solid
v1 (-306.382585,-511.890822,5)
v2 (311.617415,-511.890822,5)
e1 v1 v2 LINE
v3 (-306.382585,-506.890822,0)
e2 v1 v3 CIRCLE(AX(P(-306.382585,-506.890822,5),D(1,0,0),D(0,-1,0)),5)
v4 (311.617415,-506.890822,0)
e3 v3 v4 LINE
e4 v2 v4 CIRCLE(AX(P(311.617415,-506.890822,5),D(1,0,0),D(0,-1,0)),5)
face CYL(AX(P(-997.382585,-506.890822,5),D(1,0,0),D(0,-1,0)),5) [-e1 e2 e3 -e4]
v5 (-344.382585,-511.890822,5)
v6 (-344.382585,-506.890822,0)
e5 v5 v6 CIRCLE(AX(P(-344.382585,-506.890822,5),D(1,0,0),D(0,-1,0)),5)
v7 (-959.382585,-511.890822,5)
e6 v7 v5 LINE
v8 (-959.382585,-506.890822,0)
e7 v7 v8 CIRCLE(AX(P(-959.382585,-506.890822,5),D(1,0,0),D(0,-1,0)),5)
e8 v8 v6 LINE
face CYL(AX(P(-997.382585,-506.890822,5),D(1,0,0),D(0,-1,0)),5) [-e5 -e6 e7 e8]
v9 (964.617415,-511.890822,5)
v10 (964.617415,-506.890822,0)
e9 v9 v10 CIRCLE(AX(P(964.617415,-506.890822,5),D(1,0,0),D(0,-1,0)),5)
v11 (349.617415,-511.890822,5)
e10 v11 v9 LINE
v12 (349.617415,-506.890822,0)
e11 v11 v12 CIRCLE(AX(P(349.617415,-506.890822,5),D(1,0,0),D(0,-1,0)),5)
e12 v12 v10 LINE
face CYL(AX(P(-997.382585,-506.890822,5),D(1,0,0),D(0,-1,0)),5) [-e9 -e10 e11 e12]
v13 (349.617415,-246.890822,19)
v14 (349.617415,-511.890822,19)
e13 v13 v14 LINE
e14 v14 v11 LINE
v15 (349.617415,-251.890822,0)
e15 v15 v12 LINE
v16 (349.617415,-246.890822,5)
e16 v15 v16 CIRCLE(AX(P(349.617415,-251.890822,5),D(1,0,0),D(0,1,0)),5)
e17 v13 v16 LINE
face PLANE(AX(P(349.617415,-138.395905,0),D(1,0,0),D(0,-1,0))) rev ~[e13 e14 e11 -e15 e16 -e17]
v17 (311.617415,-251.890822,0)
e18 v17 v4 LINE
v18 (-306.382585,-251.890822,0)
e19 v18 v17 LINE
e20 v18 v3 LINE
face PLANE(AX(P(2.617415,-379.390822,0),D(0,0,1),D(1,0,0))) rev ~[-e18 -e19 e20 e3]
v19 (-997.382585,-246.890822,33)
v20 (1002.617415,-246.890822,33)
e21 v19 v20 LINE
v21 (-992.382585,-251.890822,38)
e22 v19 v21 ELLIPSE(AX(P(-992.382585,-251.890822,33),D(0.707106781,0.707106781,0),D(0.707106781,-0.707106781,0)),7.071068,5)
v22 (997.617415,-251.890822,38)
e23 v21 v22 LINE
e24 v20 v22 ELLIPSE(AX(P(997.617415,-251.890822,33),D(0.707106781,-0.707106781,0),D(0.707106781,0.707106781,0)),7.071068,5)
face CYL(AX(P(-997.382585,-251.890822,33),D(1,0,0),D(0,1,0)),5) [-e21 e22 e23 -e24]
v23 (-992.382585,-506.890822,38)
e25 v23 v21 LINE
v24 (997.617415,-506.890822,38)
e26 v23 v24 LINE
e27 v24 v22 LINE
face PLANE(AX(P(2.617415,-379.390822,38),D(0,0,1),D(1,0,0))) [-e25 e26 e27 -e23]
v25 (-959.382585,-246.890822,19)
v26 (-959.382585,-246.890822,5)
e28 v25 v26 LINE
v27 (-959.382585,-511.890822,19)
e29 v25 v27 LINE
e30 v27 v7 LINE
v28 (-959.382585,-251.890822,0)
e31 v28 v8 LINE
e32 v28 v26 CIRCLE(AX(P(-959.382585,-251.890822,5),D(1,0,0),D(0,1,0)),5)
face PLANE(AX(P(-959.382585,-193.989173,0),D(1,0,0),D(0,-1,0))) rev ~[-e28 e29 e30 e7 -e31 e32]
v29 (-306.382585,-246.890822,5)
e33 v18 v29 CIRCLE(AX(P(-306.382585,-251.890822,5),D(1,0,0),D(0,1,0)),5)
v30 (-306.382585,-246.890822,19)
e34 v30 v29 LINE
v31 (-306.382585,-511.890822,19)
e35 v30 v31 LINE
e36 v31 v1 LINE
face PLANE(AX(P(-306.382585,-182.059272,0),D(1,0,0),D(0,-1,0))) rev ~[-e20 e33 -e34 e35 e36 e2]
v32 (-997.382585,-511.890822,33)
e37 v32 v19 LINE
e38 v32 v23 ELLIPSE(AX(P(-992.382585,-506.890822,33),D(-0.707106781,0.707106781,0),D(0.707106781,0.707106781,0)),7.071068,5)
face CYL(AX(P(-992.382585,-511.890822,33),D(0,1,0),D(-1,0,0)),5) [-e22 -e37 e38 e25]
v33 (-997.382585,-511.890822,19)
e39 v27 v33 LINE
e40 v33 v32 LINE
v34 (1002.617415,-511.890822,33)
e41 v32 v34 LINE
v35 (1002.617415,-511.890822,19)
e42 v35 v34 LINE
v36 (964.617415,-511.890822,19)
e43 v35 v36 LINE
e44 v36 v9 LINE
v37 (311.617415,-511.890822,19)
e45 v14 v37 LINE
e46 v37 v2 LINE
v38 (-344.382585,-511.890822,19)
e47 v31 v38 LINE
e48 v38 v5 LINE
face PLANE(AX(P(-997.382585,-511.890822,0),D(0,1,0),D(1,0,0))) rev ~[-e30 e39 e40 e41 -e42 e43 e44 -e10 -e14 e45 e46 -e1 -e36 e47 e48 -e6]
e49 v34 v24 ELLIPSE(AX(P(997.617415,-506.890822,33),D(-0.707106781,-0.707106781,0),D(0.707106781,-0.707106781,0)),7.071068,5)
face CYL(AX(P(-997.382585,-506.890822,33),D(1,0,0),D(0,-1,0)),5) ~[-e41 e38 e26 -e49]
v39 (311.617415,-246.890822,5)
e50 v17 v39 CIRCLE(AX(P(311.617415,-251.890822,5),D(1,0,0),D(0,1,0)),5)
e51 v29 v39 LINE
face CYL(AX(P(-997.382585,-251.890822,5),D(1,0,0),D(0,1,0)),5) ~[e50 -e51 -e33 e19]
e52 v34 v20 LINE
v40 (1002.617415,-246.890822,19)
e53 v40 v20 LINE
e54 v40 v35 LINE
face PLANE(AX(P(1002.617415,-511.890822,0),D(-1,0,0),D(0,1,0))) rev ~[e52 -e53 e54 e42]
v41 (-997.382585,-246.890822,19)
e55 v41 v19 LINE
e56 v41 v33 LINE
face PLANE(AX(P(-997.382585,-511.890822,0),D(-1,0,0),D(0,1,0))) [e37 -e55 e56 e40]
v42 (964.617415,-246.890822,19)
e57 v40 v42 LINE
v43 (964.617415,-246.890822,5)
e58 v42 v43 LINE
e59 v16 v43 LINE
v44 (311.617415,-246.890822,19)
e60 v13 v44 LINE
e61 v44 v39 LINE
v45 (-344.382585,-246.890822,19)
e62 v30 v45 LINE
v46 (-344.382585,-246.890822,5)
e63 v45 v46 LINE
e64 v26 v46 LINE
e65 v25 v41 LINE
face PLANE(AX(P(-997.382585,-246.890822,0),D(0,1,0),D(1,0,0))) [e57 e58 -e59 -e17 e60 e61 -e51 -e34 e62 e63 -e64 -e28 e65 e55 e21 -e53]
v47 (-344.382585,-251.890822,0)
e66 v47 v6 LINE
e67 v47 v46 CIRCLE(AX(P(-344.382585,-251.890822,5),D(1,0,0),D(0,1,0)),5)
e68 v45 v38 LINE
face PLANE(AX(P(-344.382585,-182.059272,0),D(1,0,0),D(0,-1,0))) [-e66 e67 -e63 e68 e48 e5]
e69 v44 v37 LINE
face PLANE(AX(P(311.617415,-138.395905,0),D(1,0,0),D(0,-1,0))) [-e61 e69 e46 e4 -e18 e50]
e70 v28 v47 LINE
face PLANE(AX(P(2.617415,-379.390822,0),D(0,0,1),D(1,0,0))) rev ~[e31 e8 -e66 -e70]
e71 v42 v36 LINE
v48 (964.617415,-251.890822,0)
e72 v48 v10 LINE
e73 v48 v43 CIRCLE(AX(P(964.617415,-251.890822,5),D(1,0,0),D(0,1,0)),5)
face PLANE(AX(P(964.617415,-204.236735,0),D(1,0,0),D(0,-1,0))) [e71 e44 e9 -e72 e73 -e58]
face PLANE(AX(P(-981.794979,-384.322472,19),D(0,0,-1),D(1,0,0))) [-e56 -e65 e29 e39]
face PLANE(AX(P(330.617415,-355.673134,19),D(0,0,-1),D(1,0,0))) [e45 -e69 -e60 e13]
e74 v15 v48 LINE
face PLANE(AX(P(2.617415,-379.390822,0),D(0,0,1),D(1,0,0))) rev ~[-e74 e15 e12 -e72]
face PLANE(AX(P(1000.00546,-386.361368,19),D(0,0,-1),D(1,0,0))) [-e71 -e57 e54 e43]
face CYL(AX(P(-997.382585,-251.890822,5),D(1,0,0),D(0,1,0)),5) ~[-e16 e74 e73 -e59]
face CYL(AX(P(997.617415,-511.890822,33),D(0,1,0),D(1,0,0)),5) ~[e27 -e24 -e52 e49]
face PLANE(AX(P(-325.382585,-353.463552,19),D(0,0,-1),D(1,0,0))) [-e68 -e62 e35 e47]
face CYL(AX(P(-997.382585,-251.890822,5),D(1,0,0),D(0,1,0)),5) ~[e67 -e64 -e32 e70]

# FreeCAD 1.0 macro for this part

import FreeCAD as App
import Part
import Sketcher
from FreeCAD import Vector
Q = App.Units.Quantity


def edges_at(feature, points):
    """Names of the edges that pass closest to the given points."""
    edges = feature.Shape.Edges
    near = lambda p: min(range(len(edges)), key=lambda i: edges[i].distToShape(Part.Vertex(*p))[0])
    return sorted({f"Edge{near(p) + 1}" for p in points})

doc = App.newDocument("Part")
body = doc.addObject("PartDesign::Body", "Body")

# Sketch on XY plane
sketch1 = body.newObject("Sketcher::SketchObject", "Sketch")
sketch1.AttachmentSupport = (doc.getObject("XY_Plane"), [""])
sketch1.MapMode = "FlatFace"
sketch1.addGeometry(Part.LineSegment(Vector(-997, -247, 0), Vector(-997, -512, 0)), False)
sketch1.addGeometry(Part.LineSegment(Vector(-997, -512, 0), Vector(1003, -512, 0)), False)
sketch1.addGeometry(Part.LineSegment(Vector(1003, -512, 0), Vector(1003, -247, 0)), False)
sketch1.addGeometry(Part.LineSegment(Vector(1003, -247, 0), Vector(-997, -247, 0)), False)
sketch1.addConstraint(Sketcher.Constraint("Coincident", 0, 2, 1, 1))
sketch1.addConstraint(Sketcher.Constraint("Coincident", 1, 2, 2, 1))
sketch1.addConstraint(Sketcher.Constraint("Coincident", 2, 2, 3, 1))
sketch1.addConstraint(Sketcher.Constraint("Coincident", 3, 2, 0, 1))
sketch1.addConstraint(Sketcher.Constraint("Vertical", 0))
sketch1.addConstraint(Sketcher.Constraint("Horizontal", 1))
sketch1.addConstraint(Sketcher.Constraint("Vertical", 2))
sketch1.addConstraint(Sketcher.Constraint("Horizontal", 3))
sketch1.addConstraint(Sketcher.Constraint("DistanceX", 1, 1, 1, 2, Q("2000 mm")))
sketch1.addConstraint(Sketcher.Constraint("DistanceY", 0, 2, 0, 1, Q("265 mm")))
sketch1.addConstraint(Sketcher.Constraint("DistanceY", 0, 2, -1, 1, Q("511.890822 mm")))
sketch1.addConstraint(Sketcher.Constraint("DistanceX", 0, 2, -1, 1, Q("997.382585 mm")))
pad1 = body.newObject("PartDesign::Pad", "Pad")
pad1.Profile = sketch1
pad1.Length = 38
doc.recompute()

fillet = body.newObject("PartDesign::Fillet", "Fillet")
fillet.Base = (pad1, edges_at(pad1, [
    (2.617, -246.891, 38),
    (-997.383, -379.391, 38),
    (2.617, -511.891, 38),
    (1002.617, -379.391, 38),
    (2.617, -246.891, 0),
    (-997.383, -379.391, 0),
    (2.617, -511.891, 0),
    (1002.617, -379.391, 0),
]))
fillet.Radius = 5

# Sketch on XY plane
sketch2 = body.newObject("Sketcher::SketchObject", "Sketch001")
sketch2.AttachmentSupport = (doc.getObject("XY_Plane"), [""])
sketch2.MapMode = "FlatFace"
sketch2.addGeometry(Part.LineSegment(Vector(-1004, -575, 0), Vector(-1004, -194, 0)), False)
sketch2.addGeometry(Part.LineSegment(Vector(-1004, -194, 0), Vector(-959, -194, 0)), False)
sketch2.addGeometry(Part.LineSegment(Vector(-959, -194, 0), Vector(-959, -575, 0)), False)
sketch2.addGeometry(Part.LineSegment(Vector(-959, -575, 0), Vector(-1004, -575, 0)), False)
sketch2.addGeometry(Part.LineSegment(Vector(965, -568, 0), Vector(965, -204, 0)), False)
sketch2.addGeometry(Part.LineSegment(Vector(965, -204, 0), Vector(1035, -204, 0)), False)
sketch2.addGeometry(Part.LineSegment(Vector(1035, -204, 0), Vector(1035, -568, 0)), False)
sketch2.addGeometry(Part.LineSegment(Vector(1035, -568, 0), Vector(965, -568, 0)), False)
sketch2.addConstraint(Sketcher.Constraint("Coincident", 0, 2, 1, 1))
sketch2.addConstraint(Sketcher.Constraint("Coincident", 1, 2, 2, 1))
sketch2.addConstraint(Sketcher.Constraint("Coincident", 2, 2, 3, 1))
sketch2.addConstraint(Sketcher.Constraint("Coincident", 3, 2, 0, 1))
sketch2.addConstraint(Sketcher.Constraint("Coincident", 4, 2, 5, 1))
sketch2.addConstraint(Sketcher.Constraint("Coincident", 5, 2, 6, 1))
sketch2.addConstraint(Sketcher.Constraint("Coincident", 6, 2, 7, 1))
sketch2.addConstraint(Sketcher.Constraint("Coincident", 7, 2, 4, 1))
sketch2.addConstraint(Sketcher.Constraint("Vertical", 0))
sketch2.addConstraint(Sketcher.Constraint("Horizontal", 1))
sketch2.addConstraint(Sketcher.Constraint("Vertical", 2))
sketch2.addConstraint(Sketcher.Constraint("Horizontal", 3))
sketch2.addConstraint(Sketcher.Constraint("Vertical", 4))
sketch2.addConstraint(Sketcher.Constraint("Horizontal", 5))
sketch2.addConstraint(Sketcher.Constraint("Vertical", 6))
sketch2.addConstraint(Sketcher.Constraint("Horizontal", 7))
sketch2.addConstraint(Sketcher.Constraint("DistanceX", 1, 2, 4, 2, Q("1924 mm")))
sketch2.addConstraint(Sketcher.Constraint("DistanceY", 6, 2, -1, 1, Q("568.486001 mm")))
sketch2.addConstraint(Sketcher.Constraint("DistanceX", 1, 1, 1, 2, Q("44.824789 mm")))
sketch2.addConstraint(Sketcher.Constraint("DistanceX", 5, 1, 5, 2, Q("70.77609 mm")))
sketch2.addConstraint(Sketcher.Constraint("DistanceY", 0, 1, 0, 2, Q("380.666598 mm")))
sketch2.addConstraint(Sketcher.Constraint("DistanceY", 4, 1, 4, 2, Q("364.249266 mm")))
sketch2.addConstraint(Sketcher.Constraint("DistanceY", 2, 2, -1, 1, Q("574.655771 mm")))
sketch2.addConstraint(Sketcher.Constraint("DistanceX", 0, 2, -1, 1, Q("1004.207374 mm")))
pocket1 = body.newObject("PartDesign::Pocket", "Pocket")
pocket1.Profile = sketch2
pocket1.Length = 19
pocket1.Reversed = True

# Sketch on XY plane
sketch3 = body.newObject("Sketcher::SketchObject", "Sketch002")
sketch3.AttachmentSupport = (doc.getObject("XY_Plane"), [""])
sketch3.MapMode = "FlatFace"
sketch3.addGeometry(Part.LineSegment(Vector(-344, -525, 0), Vector(-344, -182, 0)), False)
sketch3.addGeometry(Part.LineSegment(Vector(-344, -182, 0), Vector(-306, -182, 0)), False)
sketch3.addGeometry(Part.LineSegment(Vector(-306, -182, 0), Vector(-306, -525, 0)), False)
sketch3.addGeometry(Part.LineSegment(Vector(-306, -525, 0), Vector(-344, -525, 0)), False)
sketch3.addGeometry(Part.LineSegment(Vector(312, -573, 0), Vector(312, -138, 0)), False)
sketch3.addGeometry(Part.LineSegment(Vector(312, -138, 0), Vector(350, -138, 0)), False)
sketch3.addGeometry(Part.LineSegment(Vector(350, -138, 0), Vector(350, -573, 0)), False)
sketch3.addGeometry(Part.LineSegment(Vector(350, -573, 0), Vector(312, -573, 0)), False)
sketch3.addConstraint(Sketcher.Constraint("Coincident", 0, 2, 1, 1))
sketch3.addConstraint(Sketcher.Constraint("Coincident", 1, 2, 2, 1))
sketch3.addConstraint(Sketcher.Constraint("Coincident", 2, 2, 3, 1))
sketch3.addConstraint(Sketcher.Constraint("Coincident", 3, 2, 0, 1))
sketch3.addConstraint(Sketcher.Constraint("Coincident", 4, 2, 5, 1))
sketch3.addConstraint(Sketcher.Constraint("Coincident", 5, 2, 6, 1))
sketch3.addConstraint(Sketcher.Constraint("Coincident", 6, 2, 7, 1))
sketch3.addConstraint(Sketcher.Constraint("Coincident", 7, 2, 4, 1))
sketch3.addConstraint(Sketcher.Constraint("Vertical", 0))
sketch3.addConstraint(Sketcher.Constraint("Horizontal", 1))
sketch3.addConstraint(Sketcher.Constraint("Vertical", 2))
sketch3.addConstraint(Sketcher.Constraint("Horizontal", 3))
sketch3.addConstraint(Sketcher.Constraint("Vertical", 4))
sketch3.addConstraint(Sketcher.Constraint("Horizontal", 5))
sketch3.addConstraint(Sketcher.Constraint("Vertical", 6))
sketch3.addConstraint(Sketcher.Constraint("Horizontal", 7))
sketch3.addConstraint(Sketcher.Constraint("Equal", 3, 5))
sketch3.addConstraint(Sketcher.Constraint("DistanceX", 1, 1, 1, 2, Q("38 mm")))
sketch3.addConstraint(Sketcher.Constraint("DistanceX", 1, 2, 4, 2, Q("618 mm")))
sketch3.addConstraint(Sketcher.Constraint("DistanceY", 0, 1, 0, 2, Q("342.808559 mm")))
sketch3.addConstraint(Sketcher.Constraint("DistanceY", 4, 1, 4, 2, Q("434.554458 mm")))
sketch3.addConstraint(Sketcher.Constraint("DistanceY", 2, 2, -1, 1, Q("524.867831 mm")))
sketch3.addConstraint(Sketcher.Constraint("DistanceY", 6, 2, 2, 2, Q("48.082532 mm")))
sketch3.addConstraint(Sketcher.Constraint("DistanceX", 0, 2, -1, 1, Q("344.382585 mm")))
pocket2 = body.newObject("PartDesign::Pocket", "Pocket001")
pocket2.Profile = sketch3
pocket2.Length = 19
pocket2.Reversed = True

doc.recompute()
